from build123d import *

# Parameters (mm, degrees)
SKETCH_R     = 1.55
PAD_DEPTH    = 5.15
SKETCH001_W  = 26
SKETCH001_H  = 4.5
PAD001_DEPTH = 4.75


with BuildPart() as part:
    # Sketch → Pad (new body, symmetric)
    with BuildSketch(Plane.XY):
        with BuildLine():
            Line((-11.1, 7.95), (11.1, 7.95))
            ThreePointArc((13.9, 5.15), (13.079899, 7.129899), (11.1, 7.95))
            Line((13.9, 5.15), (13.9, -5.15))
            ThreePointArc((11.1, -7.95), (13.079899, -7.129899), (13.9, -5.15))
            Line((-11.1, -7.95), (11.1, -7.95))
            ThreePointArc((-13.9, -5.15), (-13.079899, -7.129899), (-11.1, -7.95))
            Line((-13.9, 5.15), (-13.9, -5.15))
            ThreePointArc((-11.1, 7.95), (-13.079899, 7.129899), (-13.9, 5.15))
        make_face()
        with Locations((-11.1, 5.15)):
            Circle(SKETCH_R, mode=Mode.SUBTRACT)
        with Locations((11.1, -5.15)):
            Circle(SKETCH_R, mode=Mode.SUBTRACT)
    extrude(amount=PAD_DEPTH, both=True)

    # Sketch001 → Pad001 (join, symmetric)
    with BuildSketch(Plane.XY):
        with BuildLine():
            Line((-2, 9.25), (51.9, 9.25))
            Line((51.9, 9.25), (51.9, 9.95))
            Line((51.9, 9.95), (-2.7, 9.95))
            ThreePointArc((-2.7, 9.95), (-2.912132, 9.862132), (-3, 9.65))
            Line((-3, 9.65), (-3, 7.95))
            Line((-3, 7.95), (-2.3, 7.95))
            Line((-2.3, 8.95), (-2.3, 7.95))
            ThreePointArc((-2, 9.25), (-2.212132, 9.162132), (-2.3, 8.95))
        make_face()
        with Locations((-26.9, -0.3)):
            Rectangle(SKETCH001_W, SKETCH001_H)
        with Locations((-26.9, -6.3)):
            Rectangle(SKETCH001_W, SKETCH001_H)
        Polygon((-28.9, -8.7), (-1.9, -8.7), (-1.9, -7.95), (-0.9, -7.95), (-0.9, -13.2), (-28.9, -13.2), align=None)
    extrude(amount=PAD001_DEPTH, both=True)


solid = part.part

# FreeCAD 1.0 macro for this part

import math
import FreeCAD as App
import Part
import Sketcher

V = App.Vector

doc = App.newDocument("Part")
body = doc.addObject("PartDesign::Body", "Body")

sketch1 = body.newObject("Sketcher::SketchObject", "Sketch")
sketch1.AttachmentSupport = (doc.getObject("XY_Plane"), [""])
sketch1.MapMode = "FlatFace"
sketch1.addGeometry([
    Part.LineSegment(V(11.1, 7.95, 0), V(-11.1, 7.95, 0)),
    Part.ArcOfCircle(Part.Circle(V(-11.1, 5.15, 0), V(0, 0, 1), 2.8), math.radians(89.999999), math.radians(180.000001)),
    Part.LineSegment(V(-13.9, 5.15, 0), V(-13.9, -5.15, 0)),
    Part.ArcOfCircle(Part.Circle(V(-11.1, -5.15, 0), V(0, 0, 1), 2.8), math.radians(179.999999), math.radians(270.000001)),
    Part.LineSegment(V(-11.1, -7.95, 0), V(11.1, -7.95, 0)),
    Part.ArcOfCircle(Part.Circle(V(11.1, -5.15, 0), V(0, 0, 1), 2.8), math.radians(-90.000001), math.radians(0.000001)),
    Part.LineSegment(V(13.9, -5.15, 0), V(13.9, 5.15, 0)),
    Part.ArcOfCircle(Part.Circle(V(11.1, 5.15, 0), V(0, 0, 1), 2.8), math.radians(-0.000001), math.radians(90.000001)),
    Part.Circle(V(11.1, -5.15, 0), V(0, 0, 1), 1.55),
    Part.Circle(V(-11.1, 5.15, 0), V(0, 0, 1), 1.55),
], False)
sketch1.addConstraint([
    Sketcher.Constraint("Tangent", 0, 2, 1, 1),
    Sketcher.Constraint("Tangent", 1, 2, 2, 1),
    Sketcher.Constraint("Tangent", 2, 2, 3, 1),
    Sketcher.Constraint("Tangent", 3, 2, 4, 1),
    Sketcher.Constraint("Tangent", 4, 2, 5, 1),
    Sketcher.Constraint("Tangent", 5, 2, 6, 1),
    Sketcher.Constraint("Tangent", 6, 2, 7, 1),
    Sketcher.Constraint("Tangent", 7, 2, 0, 1),
    Sketcher.Constraint("Horizontal", 0),
    Sketcher.Constraint("Vertical", 2),
    Sketcher.Constraint("Horizontal", 4),
    Sketcher.Constraint("Vertical", 6),
    Sketcher.Constraint("Coincident", 8, 3, 5, 3),
    Sketcher.Constraint("Coincident", 9, 3, 1, 3),
    Sketcher.Constraint("Equal", 1, 3),
    Sketcher.Constraint("Equal", 3, 5),
    Sketcher.Constraint("Equal", 5, 7),
    Sketcher.Constraint("Equal", 8, 9),
    Sketcher.Constraint("Symmetric", 1, 3, 5, 3, -1, 1),
    Sketcher.Constraint("Diameter", 8, 3.1),
    Sketcher.Constraint("Radius", 1, 2.8),
    Sketcher.Constraint("DistanceX", 0, 2, 0, 1, 22.2),
    Sketcher.Constraint("DistanceY", 2, 2, 2, 1, 10.3),
])
pad1 = body.newObject("PartDesign::Pad", "Pad")
pad1.Profile = sketch1
pad1.Length = 10.3
pad1.Midplane = True

sketch2 = body.newObject("Sketcher::SketchObject", "Sketch001")
sketch2.AttachmentSupport = (doc.getObject("XY_Plane"), [""])
sketch2.MapMode = "FlatFace"
sketch2.addGeometry([
    Part.LineSegment(V(-2, 9.25, 0), V(51.9, 9.25, 0)),
    Part.LineSegment(V(51.9, 9.25, 0), V(51.9, 9.95, 0)),
    Part.LineSegment(V(51.9, 9.95, 0), V(-2.7, 9.95, 0)),
    Part.ArcOfCircle(Part.Circle(V(-2.7, 9.65, 0), V(0, 0, 1), 0.3), math.radians(90.000022), math.radians(179.999978)),
    Part.LineSegment(V(-3, 9.65, 0), V(-3, 7.95, 0)),
    Part.LineSegment(V(-3, 7.95, 0), V(-2.3, 7.95, 0)),
    Part.LineSegment(V(-2.3, 7.95, 0), V(-2.3, 8.95, 0)),
    Part.ArcOfCircle(Part.Circle(V(-2, 8.95, 0), V(0, 0, 1), 0.3), math.radians(90.000022), math.radians(179.999978)),
    Part.LineSegment(V(-39.9, 1.95, 0), V(-39.9, -2.55, 0)),
    Part.LineSegment(V(-39.9, -2.55, 0), V(-13.9, -2.55, 0)),
    Part.LineSegment(V(-13.9, -2.55, 0), V(-13.9, 1.95, 0)),
    Part.LineSegment(V(-13.9, 1.95, 0), V(-39.9, 1.95, 0)),
    Part.LineSegment(V(-39.9, -4.05, 0), V(-39.9, -8.55, 0)),
    Part.LineSegment(V(-39.9, -8.55, 0), V(-13.9, -8.55, 0)),
    Part.LineSegment(V(-13.9, -8.55, 0), V(-13.9, -4.05, 0)),
    Part.LineSegment(V(-13.9, -4.05, 0), V(-39.9, -4.05, 0)),
    Part.LineSegment(V(-1.9, -8.7, 0), V(-28.9, -8.7, 0)),
    Part.LineSegment(V(-28.9, -8.7, 0), V(-28.9, -13.2, 0)),
    Part.LineSegment(V(-28.9, -13.2, 0), V(-0.9, -13.2, 0)),
    Part.LineSegment(V(-0.9, -13.2, 0), V(-0.9, -7.95, 0)),
    Part.LineSegment(V(-0.9, -7.95, 0), V(-1.9, -7.95, 0)),
    Part.LineSegment(V(-1.9, -7.95, 0), V(-1.9, -8.7, 0)),
], False)
sketch2.addConstraint([
    Sketcher.Constraint("Coincident", 0, 2, 1, 1),
    Sketcher.Constraint("Coincident", 1, 2, 2, 1),
    Sketcher.Constraint("Tangent", 2, 2, 3, 1),
    Sketcher.Constraint("Tangent", 3, 2, 4, 1),
    Sketcher.Constraint("Coincident", 4, 2, 5, 1),
    Sketcher.Constraint("Coincident", 5, 2, 6, 1),
    Sketcher.Constraint("Tangent", 6, 2, 7, 2),
    Sketcher.Constraint("Tangent", 7, 1, 0, 1),
    Sketcher.Constraint("Coincident", 8, 2, 9, 1),
    Sketcher.Constraint("Coincident", 9, 2, 10, 1),
    Sketcher.Constraint("Coincident", 10, 2, 11, 1),
    Sketcher.Constraint("Coincident", 11, 2, 8, 1),
    Sketcher.Constraint("Coincident", 12, 2, 13, 1),
    Sketcher.Constraint("Coincident", 13, 2, 14, 1),
    Sketcher.Constraint("Coincident", 14, 2, 15, 1),
    Sketcher.Constraint("Coincident", 15, 2, 12, 1),
    Sketcher.Constraint("Coincident", 16, 2, 17, 1),
    Sketcher.Constraint("Coincident", 17, 2, 18, 1),
    Sketcher.Constraint("Coincident", 18, 2, 19, 1),
    Sketcher.Constraint("Coincident", 19, 2, 20, 1),
    Sketcher.Constraint("Coincident", 20, 2, 21, 1),
    Sketcher.Constraint("Coincident", 21, 2, 16, 1),
    Sketcher.Constraint("Horizontal", 0),
    Sketcher.Constraint("Vertical", 1),
    Sketcher.Constraint("Horizontal", 2),
    Sketcher.Constraint("Vertical", 4),
    Sketcher.Constraint("Horizontal", 5),
    Sketcher.Constraint("Vertical", 6),
    Sketcher.Constraint("Vertical", 8),
    Sketcher.Constraint("Horizontal", 9),
    Sketcher.Constraint("Vertical", 10),
    Sketcher.Constraint("Horizontal", 11),
    Sketcher.Constraint("Vertical", 12),
    Sketcher.Constraint("Horizontal", 13),
    Sketcher.Constraint("Vertical", 14),
    Sketcher.Constraint("Horizontal", 15),
    Sketcher.Constraint("Horizontal", 16),
    Sketcher.Constraint("Vertical", 17),
    Sketcher.Constraint("Horizontal", 18),
    Sketcher.Constraint("Vertical", 19),
    Sketcher.Constraint("Horizontal", 20),
    Sketcher.Constraint("Vertical", 21),
    Sketcher.Constraint("Equal", 3, 7),
    Sketcher.Constraint("Vertical", 11, 2, 12, 2),
    Sketcher.Constraint("Vertical", 10, 2, 13, 2),
    Sketcher.Constraint("Equal", 5, 1),
    Sketcher.Constraint("Equal", 20, 6),
    Sketcher.Constraint("Equal", 10, 12),
    Sketcher.Constraint("Equal", 14, 17),
    Sketcher.Constraint("Radius", 3, 0.3),
    Sketcher.Constraint("DistanceX", 9, 1, 9, 2, 26.0),
    Sketcher.Constraint("DistanceX", 16, 2, 16, 1, 27.0),
    Sketcher.Constraint("DistanceX", 18, 1, 18, 2, 28.0),
    Sketcher.Constraint("DistanceX", 0, 1, 0, 2, 53.9),
    Sketcher.Constraint("DistanceX", 2, 2, 2, 1, 54.6),
    Sketcher.Constraint("DistanceY", 8, 2, 8, 1, 4.5),
    Sketcher.Constraint("DistanceX", 7, 3, -1, 1, 2.0),
    Sketcher.Constraint("DistanceY", 10, 2, 4, 2, 6.0),
    Sketcher.Constraint("DistanceY", 12, 2, 8, 2, 6.0),
    Sketcher.Constraint("DistanceX", 12, 2, 16, 2, 11.0),
    Sketcher.Constraint("DistanceY", 19, 1, 19, 2, 5.25),
    Sketcher.Constraint("DistanceX", 8, 2, -1, 1, 39.9),
    Sketcher.Constraint("DistanceY", 16, 2, -1, 1, 8.7),
    Sketcher.Constraint("DistanceY", 13, 2, 19, 2, 0.6),
])
pad2 = body.newObject("PartDesign::Pad", "Pad001")
pad2.Profile = sketch2
pad2.Length = 9.5
pad2.Midplane = True

doc.recompute()
